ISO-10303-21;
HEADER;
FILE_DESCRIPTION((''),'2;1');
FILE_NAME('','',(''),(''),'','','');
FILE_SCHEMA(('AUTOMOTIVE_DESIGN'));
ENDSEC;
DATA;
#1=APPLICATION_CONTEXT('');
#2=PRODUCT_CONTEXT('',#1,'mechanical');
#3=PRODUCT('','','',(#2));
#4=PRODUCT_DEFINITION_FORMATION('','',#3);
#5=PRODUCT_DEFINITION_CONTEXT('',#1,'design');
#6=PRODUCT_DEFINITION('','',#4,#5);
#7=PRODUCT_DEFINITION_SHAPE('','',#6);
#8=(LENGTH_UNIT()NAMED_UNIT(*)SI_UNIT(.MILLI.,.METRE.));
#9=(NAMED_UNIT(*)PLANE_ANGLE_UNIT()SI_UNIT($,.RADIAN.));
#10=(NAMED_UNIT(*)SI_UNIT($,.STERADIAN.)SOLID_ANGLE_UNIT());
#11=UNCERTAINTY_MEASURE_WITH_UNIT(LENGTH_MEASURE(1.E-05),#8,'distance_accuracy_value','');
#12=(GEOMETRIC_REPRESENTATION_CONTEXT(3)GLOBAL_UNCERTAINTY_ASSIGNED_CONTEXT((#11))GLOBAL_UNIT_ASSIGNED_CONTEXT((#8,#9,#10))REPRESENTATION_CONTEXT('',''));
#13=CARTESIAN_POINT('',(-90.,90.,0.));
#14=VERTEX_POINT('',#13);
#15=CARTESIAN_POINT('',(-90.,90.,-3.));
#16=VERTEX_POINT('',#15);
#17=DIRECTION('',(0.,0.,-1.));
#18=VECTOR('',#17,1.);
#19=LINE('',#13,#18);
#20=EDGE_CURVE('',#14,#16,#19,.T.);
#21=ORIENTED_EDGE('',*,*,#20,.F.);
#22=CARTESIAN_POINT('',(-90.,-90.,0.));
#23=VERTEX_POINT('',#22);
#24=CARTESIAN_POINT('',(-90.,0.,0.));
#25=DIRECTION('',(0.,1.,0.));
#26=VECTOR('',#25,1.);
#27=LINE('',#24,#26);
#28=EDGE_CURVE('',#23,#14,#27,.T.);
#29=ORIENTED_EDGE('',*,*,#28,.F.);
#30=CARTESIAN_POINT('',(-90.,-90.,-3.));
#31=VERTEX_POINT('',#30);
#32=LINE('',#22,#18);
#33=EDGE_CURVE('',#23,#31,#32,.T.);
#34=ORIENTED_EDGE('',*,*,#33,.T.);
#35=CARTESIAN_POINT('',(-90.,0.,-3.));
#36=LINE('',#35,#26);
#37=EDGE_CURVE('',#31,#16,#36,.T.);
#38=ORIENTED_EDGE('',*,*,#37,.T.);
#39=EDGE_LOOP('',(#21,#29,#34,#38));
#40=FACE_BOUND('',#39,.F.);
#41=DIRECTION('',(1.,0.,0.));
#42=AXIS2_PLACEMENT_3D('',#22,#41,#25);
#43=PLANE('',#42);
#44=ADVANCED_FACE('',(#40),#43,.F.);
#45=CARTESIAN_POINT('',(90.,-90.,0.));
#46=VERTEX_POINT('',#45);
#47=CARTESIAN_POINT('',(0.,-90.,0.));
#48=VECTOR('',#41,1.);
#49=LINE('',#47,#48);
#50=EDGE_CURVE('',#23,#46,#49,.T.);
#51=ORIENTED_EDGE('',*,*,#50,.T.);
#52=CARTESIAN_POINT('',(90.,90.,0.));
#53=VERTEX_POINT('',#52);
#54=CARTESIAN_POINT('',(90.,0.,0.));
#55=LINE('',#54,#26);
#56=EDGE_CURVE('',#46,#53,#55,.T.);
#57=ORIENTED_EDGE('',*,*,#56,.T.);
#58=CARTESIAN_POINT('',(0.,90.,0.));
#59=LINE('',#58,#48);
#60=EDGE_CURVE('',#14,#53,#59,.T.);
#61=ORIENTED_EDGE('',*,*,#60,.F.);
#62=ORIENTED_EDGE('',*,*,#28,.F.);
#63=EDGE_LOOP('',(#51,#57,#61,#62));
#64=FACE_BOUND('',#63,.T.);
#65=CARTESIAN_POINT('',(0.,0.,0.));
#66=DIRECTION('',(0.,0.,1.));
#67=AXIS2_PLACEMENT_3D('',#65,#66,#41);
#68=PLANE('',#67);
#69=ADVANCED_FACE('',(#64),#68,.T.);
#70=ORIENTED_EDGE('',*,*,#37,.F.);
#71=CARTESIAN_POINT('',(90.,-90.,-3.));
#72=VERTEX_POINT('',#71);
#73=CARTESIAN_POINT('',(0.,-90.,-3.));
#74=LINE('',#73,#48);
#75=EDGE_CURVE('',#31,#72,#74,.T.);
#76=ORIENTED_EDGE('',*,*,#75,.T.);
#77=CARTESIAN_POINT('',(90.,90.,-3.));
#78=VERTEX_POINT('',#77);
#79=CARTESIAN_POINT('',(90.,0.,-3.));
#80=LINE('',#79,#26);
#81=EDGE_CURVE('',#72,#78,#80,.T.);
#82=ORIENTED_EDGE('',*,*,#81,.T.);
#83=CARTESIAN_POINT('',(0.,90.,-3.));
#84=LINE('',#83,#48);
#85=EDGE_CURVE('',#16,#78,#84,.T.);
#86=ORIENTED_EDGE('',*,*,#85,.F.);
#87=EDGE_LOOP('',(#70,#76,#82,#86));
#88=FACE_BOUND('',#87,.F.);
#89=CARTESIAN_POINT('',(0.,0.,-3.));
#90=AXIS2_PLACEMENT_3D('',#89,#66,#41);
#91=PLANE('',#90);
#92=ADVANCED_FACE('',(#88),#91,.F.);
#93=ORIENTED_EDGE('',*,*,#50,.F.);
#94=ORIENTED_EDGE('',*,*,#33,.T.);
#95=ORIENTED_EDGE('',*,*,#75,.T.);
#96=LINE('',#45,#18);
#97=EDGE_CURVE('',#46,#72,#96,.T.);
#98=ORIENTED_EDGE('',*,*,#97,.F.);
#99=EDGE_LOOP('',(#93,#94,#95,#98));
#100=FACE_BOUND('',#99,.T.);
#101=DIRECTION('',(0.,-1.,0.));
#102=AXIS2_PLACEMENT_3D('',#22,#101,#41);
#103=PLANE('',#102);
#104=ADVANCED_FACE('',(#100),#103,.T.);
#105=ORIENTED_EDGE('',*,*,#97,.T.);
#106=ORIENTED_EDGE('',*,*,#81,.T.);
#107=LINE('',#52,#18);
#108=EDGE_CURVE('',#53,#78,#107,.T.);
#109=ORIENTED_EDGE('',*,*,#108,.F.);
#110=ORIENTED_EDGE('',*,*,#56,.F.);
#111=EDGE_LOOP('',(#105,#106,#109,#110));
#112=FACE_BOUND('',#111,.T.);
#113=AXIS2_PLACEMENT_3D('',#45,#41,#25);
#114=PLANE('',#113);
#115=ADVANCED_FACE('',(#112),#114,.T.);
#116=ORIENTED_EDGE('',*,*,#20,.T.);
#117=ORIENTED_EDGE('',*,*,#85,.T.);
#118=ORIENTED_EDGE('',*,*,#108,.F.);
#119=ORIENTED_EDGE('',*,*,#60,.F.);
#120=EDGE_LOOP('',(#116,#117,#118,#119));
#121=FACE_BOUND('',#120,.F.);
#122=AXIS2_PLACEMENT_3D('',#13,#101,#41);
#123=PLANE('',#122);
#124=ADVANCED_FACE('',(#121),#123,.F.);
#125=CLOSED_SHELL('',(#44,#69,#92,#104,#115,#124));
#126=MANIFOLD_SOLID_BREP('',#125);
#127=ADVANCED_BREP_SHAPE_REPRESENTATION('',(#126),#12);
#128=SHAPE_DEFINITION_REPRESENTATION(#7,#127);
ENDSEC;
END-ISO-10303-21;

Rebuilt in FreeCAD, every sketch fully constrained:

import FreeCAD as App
import Part
import Sketcher

V = App.Vector
Q = App.Units.Quantity


def add_polygon(sketch, points):
    """Adds a closed chain of lines whose ends are joined by coincident constraints."""
    first, n = sketch.GeometryCount, len(points)
    for a, b in zip(points, points[1:] + points[:1]):
        sketch.addGeometry(Part.LineSegment(App.Vector(*a, 0), App.Vector(*b, 0)), False)
    for i in range(n):
        sketch.addConstraint(Sketcher.Constraint("Coincident", first + i, 2, first + (i + 1) % n, 1))

doc = App.newDocument("Part")
body = doc.addObject("PartDesign::Body", "Body")

# Sketch on XY plane
sketch1 = doc.addObject("Sketcher::SketchObject", "Sketch")
body.addObject(sketch1)
sketch1.AttachmentSupport = (doc.XY_Plane, [""])
sketch1.MapMode = "FlatFace"
add_polygon(sketch1, [(-90, 90), (-90, -90), (90, -90), (90, 90)])  # lines 0-3
sketch1.addConstraint([
    Sketcher.Constraint("Vertical", 0),
    Sketcher.Constraint("Horizontal", 1),
    Sketcher.Constraint("Vertical", 2),
    Sketcher.Constraint("Horizontal", 3),
    Sketcher.Constraint("Symmetric", 0, 2, 2, 2, -1, 1),
    Sketcher.Constraint("Equal", 3, 0),
    Sketcher.Constraint("DistanceX", 1, 1, 1, 2, Q("180 mm")),
])
pad1 = doc.addObject("PartDesign::Pad", "Pad")
body.addObject(pad1)
pad1.Profile = sketch1
pad1.Length = 3
pad1.Reversed = True

doc.recompute()
